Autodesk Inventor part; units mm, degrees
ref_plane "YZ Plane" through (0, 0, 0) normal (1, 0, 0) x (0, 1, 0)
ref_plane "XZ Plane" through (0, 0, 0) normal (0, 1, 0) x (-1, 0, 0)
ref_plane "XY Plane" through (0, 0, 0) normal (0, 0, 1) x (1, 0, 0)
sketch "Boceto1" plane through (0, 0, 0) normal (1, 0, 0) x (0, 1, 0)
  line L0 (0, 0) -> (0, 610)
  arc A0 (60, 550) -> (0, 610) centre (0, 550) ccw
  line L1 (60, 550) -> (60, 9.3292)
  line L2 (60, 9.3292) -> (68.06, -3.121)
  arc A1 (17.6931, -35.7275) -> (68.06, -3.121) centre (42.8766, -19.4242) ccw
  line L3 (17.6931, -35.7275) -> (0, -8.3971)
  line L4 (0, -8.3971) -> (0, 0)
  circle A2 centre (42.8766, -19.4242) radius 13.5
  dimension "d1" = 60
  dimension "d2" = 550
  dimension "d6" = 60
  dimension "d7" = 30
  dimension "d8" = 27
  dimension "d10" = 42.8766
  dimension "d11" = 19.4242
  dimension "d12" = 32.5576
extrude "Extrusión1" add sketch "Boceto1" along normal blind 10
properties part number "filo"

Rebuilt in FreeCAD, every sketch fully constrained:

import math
import FreeCAD as App
import Part
import Sketcher
Q = App.Units.Quantity

doc = App.newDocument("Part")
params = doc.addObject("Spreadsheet::Sheet", "Params")
for row, (alias, value) in enumerate([
    ("sketch1_diameter", "1.063 in"),
    ("pad1_length", "0.3937008 in"),
], start=1):
    params.set(f"A{row}", alias)
    params.set(f"B{row}", "=" + value)
    params.setAlias(f"B{row}", alias)

body = doc.addObject("PartDesign::Body", "Body")

# Sketch on YZ plane
sketch1 = body.newObject("Sketcher::SketchObject", "Sketch")
sketch1.AttachmentSupport = (doc.getObject("YZ_Plane"), [""])
sketch1.MapMode = "FlatFace"
sketch1.addGeometry([
    Part.LineSegment(App.Vector(0, 610, 0), App.Vector(0, -8, 0)),  # 0
    Part.LineSegment(App.Vector(0, -8, 0), App.Vector(18, -36, 0)),  # 1
    Part.ArcOfCircle(Part.Circle(App.Vector(43, -19, 0), App.Vector(0, 0, 1), 30), math.radians(-147), math.radians(33)),  # 2
    Part.LineSegment(App.Vector(68, -3, 0), App.Vector(60, 9, 0)),  # 3
    Part.LineSegment(App.Vector(60, 9, 0), App.Vector(60, 550, 0)),  # 4
    Part.ArcOfCircle(Part.Circle(App.Vector(0, 550, 0), App.Vector(0, 0, 1), 60), math.radians(0), math.radians(90)),  # 5
    Part.Circle(App.Vector(43, -19, 0), App.Vector(0, 0, 1), 14),  # 6
], False)
sketch1.addConstraint([
    Sketcher.Constraint("Coincident", 0, 2, 1, 1),
    Sketcher.Constraint("Tangent", 1, 2, 2, 1),
    Sketcher.Constraint("Tangent", 2, 2, 3, 1),
    Sketcher.Constraint("Coincident", 3, 2, 4, 1),
    Sketcher.Constraint("Tangent", 4, 2, 5, 1),
    Sketcher.Constraint("Coincident", 5, 2, 0, 1),
    Sketcher.Constraint("Vertical", 0),
    Sketcher.Constraint("Vertical", 4),
    Sketcher.Constraint("Coincident", 6, 3, 2, 3),
    Sketcher.Constraint("PointOnObject", 5, 3, -2),
    Sketcher.Constraint("PointOnObject", 0, 2, -2),
    Sketcher.Constraint("Parallel", 1, 3),
    Sketcher.Constraint("Diameter", 6, Q("1.063 in")),
    Sketcher.Constraint("Radius", 2, Q("1.1811 in")),
    Sketcher.Constraint("Radius", 5, Q("2.3622 in")),
    Sketcher.Constraint("Distance", 1, Q("1.2818 in")),
    Sketcher.Constraint("DistanceX", -1, 1, 2, 3, 42.8766),
    Sketcher.Constraint("DistanceY", 2, 3, -1, 1, 19.4242),
    Sketcher.Constraint("DistanceY", -1, 1, 5, 3, 550.0),
])
sketch1.setExpression("Constraints[12]", "Params.sketch1_diameter")
pad1 = body.newObject("PartDesign::Pad", "Pad")
pad1.Profile = sketch1
pad1.setExpression("Length", "Params.pad1_length")

doc.recompute()
